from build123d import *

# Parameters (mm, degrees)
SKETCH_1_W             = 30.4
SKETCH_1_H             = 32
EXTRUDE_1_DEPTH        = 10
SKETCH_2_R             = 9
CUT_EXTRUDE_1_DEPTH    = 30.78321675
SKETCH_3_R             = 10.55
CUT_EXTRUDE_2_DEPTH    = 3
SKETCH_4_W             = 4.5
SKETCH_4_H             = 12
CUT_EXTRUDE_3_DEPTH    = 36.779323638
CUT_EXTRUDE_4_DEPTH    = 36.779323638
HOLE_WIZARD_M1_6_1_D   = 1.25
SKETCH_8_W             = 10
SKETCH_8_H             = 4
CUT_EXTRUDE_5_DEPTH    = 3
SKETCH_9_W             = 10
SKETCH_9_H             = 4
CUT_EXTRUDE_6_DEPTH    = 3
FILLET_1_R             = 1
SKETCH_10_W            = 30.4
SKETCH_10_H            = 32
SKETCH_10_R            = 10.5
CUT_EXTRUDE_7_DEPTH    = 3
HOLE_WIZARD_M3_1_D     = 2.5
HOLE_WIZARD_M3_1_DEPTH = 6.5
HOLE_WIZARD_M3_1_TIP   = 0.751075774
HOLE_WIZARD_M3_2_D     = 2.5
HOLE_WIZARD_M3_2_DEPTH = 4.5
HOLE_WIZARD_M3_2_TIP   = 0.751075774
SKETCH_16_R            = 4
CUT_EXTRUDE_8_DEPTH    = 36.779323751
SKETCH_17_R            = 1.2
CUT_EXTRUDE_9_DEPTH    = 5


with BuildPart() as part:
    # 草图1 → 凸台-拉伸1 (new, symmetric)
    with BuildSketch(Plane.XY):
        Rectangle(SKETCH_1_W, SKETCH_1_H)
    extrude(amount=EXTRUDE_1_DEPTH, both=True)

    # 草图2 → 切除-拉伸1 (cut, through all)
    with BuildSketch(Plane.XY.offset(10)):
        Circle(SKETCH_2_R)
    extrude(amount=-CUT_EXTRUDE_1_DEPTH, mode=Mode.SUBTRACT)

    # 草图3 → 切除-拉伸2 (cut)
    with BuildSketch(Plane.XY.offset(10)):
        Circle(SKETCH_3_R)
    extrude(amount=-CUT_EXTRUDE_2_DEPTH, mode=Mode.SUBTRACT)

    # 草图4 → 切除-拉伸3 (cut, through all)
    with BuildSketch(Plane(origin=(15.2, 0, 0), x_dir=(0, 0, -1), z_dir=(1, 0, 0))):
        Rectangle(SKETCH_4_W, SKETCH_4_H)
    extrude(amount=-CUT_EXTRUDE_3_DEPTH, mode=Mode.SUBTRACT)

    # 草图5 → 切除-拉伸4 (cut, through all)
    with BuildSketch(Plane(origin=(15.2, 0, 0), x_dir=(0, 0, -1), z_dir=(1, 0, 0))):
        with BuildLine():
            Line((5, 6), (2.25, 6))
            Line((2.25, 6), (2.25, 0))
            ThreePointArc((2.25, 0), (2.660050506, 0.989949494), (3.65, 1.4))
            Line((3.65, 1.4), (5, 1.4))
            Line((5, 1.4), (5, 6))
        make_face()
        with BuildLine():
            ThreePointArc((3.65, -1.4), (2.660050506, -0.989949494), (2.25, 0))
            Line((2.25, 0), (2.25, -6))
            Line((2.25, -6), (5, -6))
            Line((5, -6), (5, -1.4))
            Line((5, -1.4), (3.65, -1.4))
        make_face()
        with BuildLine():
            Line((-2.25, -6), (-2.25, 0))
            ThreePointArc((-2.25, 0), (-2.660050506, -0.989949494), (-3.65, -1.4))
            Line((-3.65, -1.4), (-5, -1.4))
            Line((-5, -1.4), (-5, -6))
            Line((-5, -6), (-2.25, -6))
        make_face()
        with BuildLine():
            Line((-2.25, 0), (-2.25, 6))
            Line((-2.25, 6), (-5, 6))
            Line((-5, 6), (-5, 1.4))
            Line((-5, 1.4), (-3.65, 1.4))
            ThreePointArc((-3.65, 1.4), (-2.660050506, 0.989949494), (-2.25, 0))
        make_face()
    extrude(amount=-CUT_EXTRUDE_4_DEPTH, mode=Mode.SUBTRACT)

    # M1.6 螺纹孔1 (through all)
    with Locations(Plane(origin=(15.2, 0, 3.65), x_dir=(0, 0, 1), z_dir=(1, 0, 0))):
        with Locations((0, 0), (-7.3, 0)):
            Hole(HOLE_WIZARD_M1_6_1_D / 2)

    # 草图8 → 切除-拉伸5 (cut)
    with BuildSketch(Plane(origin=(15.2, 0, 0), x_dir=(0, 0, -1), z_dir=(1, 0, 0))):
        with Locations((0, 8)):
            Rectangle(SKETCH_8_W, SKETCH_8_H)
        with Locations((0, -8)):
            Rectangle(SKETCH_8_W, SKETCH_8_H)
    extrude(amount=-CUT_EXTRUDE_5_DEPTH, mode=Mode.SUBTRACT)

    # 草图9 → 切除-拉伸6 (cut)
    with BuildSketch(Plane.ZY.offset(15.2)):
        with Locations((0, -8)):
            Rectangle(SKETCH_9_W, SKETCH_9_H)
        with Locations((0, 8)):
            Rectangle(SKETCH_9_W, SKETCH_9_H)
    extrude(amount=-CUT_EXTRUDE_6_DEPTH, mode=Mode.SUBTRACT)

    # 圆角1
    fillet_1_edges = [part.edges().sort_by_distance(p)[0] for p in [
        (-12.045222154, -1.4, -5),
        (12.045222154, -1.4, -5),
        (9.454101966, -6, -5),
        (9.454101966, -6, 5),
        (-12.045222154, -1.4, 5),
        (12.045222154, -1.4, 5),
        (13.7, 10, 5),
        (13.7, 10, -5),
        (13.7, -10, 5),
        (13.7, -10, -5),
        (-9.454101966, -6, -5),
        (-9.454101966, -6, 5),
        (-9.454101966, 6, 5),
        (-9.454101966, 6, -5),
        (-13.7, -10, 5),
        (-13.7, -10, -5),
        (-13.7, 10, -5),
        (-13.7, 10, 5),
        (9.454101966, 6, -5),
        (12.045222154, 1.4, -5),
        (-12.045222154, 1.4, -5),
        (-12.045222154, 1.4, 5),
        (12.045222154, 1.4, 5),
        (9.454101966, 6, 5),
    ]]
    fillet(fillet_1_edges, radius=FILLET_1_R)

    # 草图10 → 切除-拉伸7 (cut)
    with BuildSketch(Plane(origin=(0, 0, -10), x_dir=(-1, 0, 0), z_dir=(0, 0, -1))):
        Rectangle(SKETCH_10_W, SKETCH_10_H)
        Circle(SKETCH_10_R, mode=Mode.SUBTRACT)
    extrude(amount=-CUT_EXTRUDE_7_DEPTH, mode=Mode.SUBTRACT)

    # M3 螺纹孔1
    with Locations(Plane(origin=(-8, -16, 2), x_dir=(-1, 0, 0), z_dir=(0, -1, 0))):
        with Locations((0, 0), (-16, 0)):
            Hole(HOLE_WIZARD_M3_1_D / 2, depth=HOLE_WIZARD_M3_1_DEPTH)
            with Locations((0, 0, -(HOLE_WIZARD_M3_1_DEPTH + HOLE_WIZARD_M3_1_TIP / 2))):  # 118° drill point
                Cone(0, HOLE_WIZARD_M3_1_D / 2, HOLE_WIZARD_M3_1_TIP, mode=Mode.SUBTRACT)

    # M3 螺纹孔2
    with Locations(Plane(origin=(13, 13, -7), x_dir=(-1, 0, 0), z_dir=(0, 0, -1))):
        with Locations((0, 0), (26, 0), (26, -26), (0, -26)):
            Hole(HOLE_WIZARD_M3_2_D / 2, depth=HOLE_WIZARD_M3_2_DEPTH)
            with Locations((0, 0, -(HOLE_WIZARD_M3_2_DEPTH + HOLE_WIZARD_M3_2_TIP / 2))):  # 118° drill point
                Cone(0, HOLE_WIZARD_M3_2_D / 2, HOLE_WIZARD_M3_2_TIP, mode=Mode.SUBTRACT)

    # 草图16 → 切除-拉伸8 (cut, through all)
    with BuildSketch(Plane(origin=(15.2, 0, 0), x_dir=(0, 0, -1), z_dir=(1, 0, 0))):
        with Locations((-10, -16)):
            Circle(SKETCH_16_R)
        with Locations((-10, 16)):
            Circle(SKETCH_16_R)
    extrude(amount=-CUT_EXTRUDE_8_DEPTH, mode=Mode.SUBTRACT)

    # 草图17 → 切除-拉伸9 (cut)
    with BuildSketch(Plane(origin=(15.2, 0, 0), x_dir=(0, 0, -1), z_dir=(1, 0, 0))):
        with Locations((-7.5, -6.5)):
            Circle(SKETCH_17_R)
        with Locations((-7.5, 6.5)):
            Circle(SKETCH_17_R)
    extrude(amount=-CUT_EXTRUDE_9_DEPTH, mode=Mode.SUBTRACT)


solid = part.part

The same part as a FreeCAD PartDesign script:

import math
import FreeCAD as App
import Part
import Sketcher


def edges_at(feature, points):
    """Names of the edges that pass closest to the given points."""
    edges = feature.Shape.Edges
    near = lambda p: min(range(len(edges)), key=lambda i: edges[i].distToShape(Part.Vertex(*p))[0])
    return sorted({f"Edge{near(p) + 1}" for p in points})


def add_polygon(sketch, points):
    """Adds a closed chain of lines whose ends are joined by coincident constraints."""
    first, n = sketch.GeometryCount, len(points)
    for a, b in zip(points, points[1:] + points[:1]):
        sketch.addGeometry(Part.LineSegment(App.Vector(*a, 0), App.Vector(*b, 0)), False)
    for i in range(n):
        sketch.addConstraint(Sketcher.Constraint("Coincident", first + i, 2, first + (i + 1) % n, 1))

doc = App.newDocument("Part")
body = doc.addObject("PartDesign::Body", "Body")

sketch1 = body.newObject("Sketcher::SketchObject", "Sketch")
sketch1.AttachmentSupport = (doc.getObject("XY_Plane"), [""])
sketch1.MapMode = "FlatFace"
add_polygon(sketch1, [(-15, 16), (-15, -16), (15, -16), (15, 16)])
sketch1.addConstraint([
    Sketcher.Constraint("Vertical", 0),
    Sketcher.Constraint("Horizontal", 1),
    Sketcher.Constraint("Vertical", 2),
    Sketcher.Constraint("Horizontal", 3),
    Sketcher.Constraint("Symmetric", 0, 2, 2, 2, -1, 1),
    Sketcher.Constraint("DistanceY", 0, 2, 0, 1, 32.0),
    Sketcher.Constraint("DistanceX", 1, 1, 1, 2, 30.4),
])
pad1 = body.newObject("PartDesign::Pad", "Pad")
pad1.Profile = sketch1
pad1.Length = 20
pad1.Midplane = True

sketch2 = body.newObject("Sketcher::SketchObject", "Sketch001")
sketch2.AttachmentSupport = (doc.getObject("XY_Plane"), [""])
sketch2.MapMode = "FlatFace"
sketch2.AttachmentOffset = App.Placement(App.Vector(0, 0, 10), App.Rotation())
sketch2.addGeometry(Part.Circle(App.Vector(0, 0, 0), App.Vector(0, 0, 1), 9), False)
sketch2.addConstraint([
    Sketcher.Constraint("Coincident", 0, 3, -1, 1),
    Sketcher.Constraint("Diameter", 0, 18.0),
])
pocket1 = body.newObject("PartDesign::Pocket", "Pocket")
pocket1.Profile = sketch2
pocket1.Type = "ThroughAll"

sketch3 = body.newObject("Sketcher::SketchObject", "Sketch002")
sketch3.AttachmentSupport = (doc.getObject("XY_Plane"), [""])
sketch3.MapMode = "FlatFace"
sketch3.AttachmentOffset = App.Placement(App.Vector(0, 0, 10), App.Rotation())
sketch3.addGeometry(Part.Circle(App.Vector(0, 0, 0), App.Vector(0, 0, 1), 11), False)
sketch3.addConstraint([
    Sketcher.Constraint("Coincident", 0, 3, -1, 1),
    Sketcher.Constraint("Diameter", 0, 21.1),
])
pocket2 = body.newObject("PartDesign::Pocket", "Pocket001")
pocket2.Profile = sketch3
pocket2.Length = 3

sketch4 = body.newObject("Sketcher::SketchObject", "Sketch003")
sketch4.AttachmentSupport = (doc.getObject("YZ_Plane"), [""])
sketch4.MapMode = "FlatFace"
sketch4.AttachmentOffset = App.Placement(App.Vector(0, 0, 15.2), App.Rotation())
add_polygon(sketch4, [(6, 2.2), (-6, 2.2), (-6, -2.2), (6, -2.2)])
sketch4.addConstraint([
    Sketcher.Constraint("Horizontal", 0),
    Sketcher.Constraint("Vertical", 1),
    Sketcher.Constraint("Horizontal", 2),
    Sketcher.Constraint("Vertical", 3),
    Sketcher.Constraint("Symmetric", 0, 2, 2, 2, -1, 1),
    Sketcher.Constraint("DistanceX", 0, 2, 0, 1, 12.0),
    Sketcher.Constraint("DistanceY", 1, 2, 1, 1, 4.5),
])
pocket3 = body.newObject("PartDesign::Pocket", "Pocket002")
pocket3.Profile = sketch4
pocket3.Type = "ThroughAll"

sketch5 = body.newObject("Sketcher::SketchObject", "Sketch004")
sketch5.AttachmentSupport = (doc.getObject("YZ_Plane"), [""])
sketch5.MapMode = "FlatFace"
sketch5.AttachmentOffset = App.Placement(App.Vector(0, 0, 15.2), App.Rotation())
sketch5.addGeometry([
    Part.LineSegment(App.Vector(6, -5, 0), App.Vector(6, -2.2, 0)),
    Part.LineSegment(App.Vector(6, -2.2, 0), App.Vector(0, -2.2, 0)),
    Part.ArcOfCircle(Part.Circle(App.Vector(0, -3.6, 0), App.Vector(0, 0, 1), 1.4), math.radians(0), math.radians(90)),
    Part.LineSegment(App.Vector(1.4, -3.6, 0), App.Vector(1.4, -5, 0)),
    Part.LineSegment(App.Vector(1.4, -5, 0), App.Vector(6, -5, 0)),
    Part.ArcOfCircle(Part.Circle(App.Vector(0, -3.6, 0), App.Vector(0, 0, 1), 1.4), math.radians(90), math.radians(180)),
    Part.LineSegment(App.Vector(0, -2.2, 0), App.Vector(-6, -2.2, 0)),
    Part.LineSegment(App.Vector(-6, -2.2, 0), App.Vector(-6, -5, 0)),
    Part.LineSegment(App.Vector(-6, -5, 0), App.Vector(-1.4, -5, 0)),
    Part.LineSegment(App.Vector(-1.4, -5, 0), App.Vector(-1.4, -3.6, 0)),
    Part.LineSegment(App.Vector(-6, 2.2, 0), App.Vector(0, 2.2, 0)),
    Part.ArcOfCircle(Part.Circle(App.Vector(0, 3.6, 0), App.Vector(0, 0, 1), 1.4), math.radians(180), math.radians(270)),
    Part.LineSegment(App.Vector(-1.4, 3.6, 0), App.Vector(-1.4, 5, 0)),
    Part.LineSegment(App.Vector(-1.4, 5, 0), App.Vector(-6, 5, 0)),
    Part.LineSegment(App.Vector(-6, 5, 0), App.Vector(-6, 2.2, 0)),
    Part.LineSegment(App.Vector(0, 2.2, 0), App.Vector(6, 2.2, 0)),
    Part.LineSegment(App.Vector(6, 2.2, 0), App.Vector(6, 5, 0)),
    Part.LineSegment(App.Vector(6, 5, 0), App.Vector(1.4, 5, 0)),
    Part.LineSegment(App.Vector(1.4, 5, 0), App.Vector(1.4, 3.6, 0)),
    Part.ArcOfCircle(Part.Circle(App.Vector(0, 3.6, 0), App.Vector(0, 0, 1), 1.4), math.radians(-90), math.radians(0)),
], False)
sketch5.addConstraint([
    Sketcher.Constraint("Coincident", 0, 2, 1, 1),
    Sketcher.Constraint("Tangent", 1, 2, 2, 2),
    Sketcher.Constraint("Tangent", 2, 1, 3, 1),
    Sketcher.Constraint("Coincident", 3, 2, 4, 1),
    Sketcher.Constraint("Coincident", 4, 2, 0, 1),
    Sketcher.Constraint("Tangent", 5, 1, 6, 1),
    Sketcher.Constraint("Coincident", 6, 2, 7, 1),
    Sketcher.Constraint("Coincident", 7, 2, 8, 1),
    Sketcher.Constraint("Coincident", 8, 2, 9, 1),
    Sketcher.Constraint("Tangent", 9, 2, 5, 2),
    Sketcher.Constraint("Tangent", 10, 2, 11, 2),
    Sketcher.Constraint("Tangent", 11, 1, 12, 1),
    Sketcher.Constraint("Coincident", 12, 2, 13, 1),
    Sketcher.Constraint("Coincident", 13, 2, 14, 1),
    Sketcher.Constraint("Coincident", 14, 2, 10, 1),
    Sketcher.Constraint("Coincident", 15, 2, 16, 1),
    Sketcher.Constraint("Coincident", 16, 2, 17, 1),
    Sketcher.Constraint("Coincident", 17, 2, 18, 1),
    Sketcher.Constraint("Tangent", 18, 2, 19, 2),
    Sketcher.Constraint("Tangent", 19, 1, 15, 1),
    Sketcher.Constraint("Vertical", 0),
    Sketcher.Constraint("Horizontal", 1),
    Sketcher.Constraint("Vertical", 3),
    Sketcher.Constraint("Horizontal", 4),
    Sketcher.Constraint("Horizontal", 6),
    Sketcher.Constraint("Vertical", 7),
    Sketcher.Constraint("Horizontal", 8),
    Sketcher.Constraint("Vertical", 9),
    Sketcher.Constraint("Horizontal", 10),
    Sketcher.Constraint("Vertical", 12),
    Sketcher.Constraint("Horizontal", 13),
    Sketcher.Constraint("Vertical", 14),
    Sketcher.Constraint("Horizontal", 15),
    Sketcher.Constraint("Vertical", 16),
    Sketcher.Constraint("Horizontal", 17),
    Sketcher.Constraint("Vertical", 18),
    Sketcher.Constraint("Coincident", 5, 3, 2, 3),
    Sketcher.Constraint("Coincident", 19, 3, 11, 3),
    Sketcher.Constraint("Equal", 2, 5),
    Sketcher.Constraint("Equal", 5, 11),
    Sketcher.Constraint("Equal", 11, 19),
    Sketcher.Constraint("Symmetric", 2, 3, 11, 3, -1, 1),
    Sketcher.Constraint("Symmetric", 4, 2, 13, 2, -1, 1),
    Sketcher.Constraint("Symmetric", 7, 2, 16, 2, -1, 1),
    Sketcher.Constraint("Symmetric", 4, 2, 7, 2, -2),
    Sketcher.Constraint("PointOnObject", 2, 3, -2),
    Sketcher.Constraint("Radius", 2, 1.4),
    Sketcher.Constraint("DistanceX", 1, 2, 1, 1, 6.0),
    Sketcher.Constraint("DistanceY", 3, 2, -1, 1, 5.0),
    Sketcher.Constraint("DistanceY", 0, 1, 0, 2, 2.75),
])
pocket4 = body.newObject("PartDesign::Pocket", "Pocket003")
pocket4.Profile = sketch5
pocket4.Type = "ThroughAll"

sketch6 = body.newObject("Sketcher::SketchObject", "Sketch005")
sketch6.AttachmentSupport = (doc.getObject("YZ_Plane"), [""])
sketch6.MapMode = "FlatFace"
sketch6.AttachmentOffset = App.Placement(App.Vector(0, 0, 15.2), App.Rotation())
sketch6.addGeometry([
    Part.Circle(App.Vector(0, 3.6, 0), App.Vector(0, 0, 1), 0.6),
    Part.Circle(App.Vector(0, -3.6, 0), App.Vector(0, 0, 1), 0.6),
], False)
sketch6.addConstraint([
    Sketcher.Constraint("Equal", 0, 1),
    Sketcher.Constraint("Symmetric", 0, 3, 1, 3, -1, 1),
    Sketcher.Constraint("PointOnObject", 0, 3, -2),
    Sketcher.Constraint("Diameter", 0, 1.25),
    Sketcher.Constraint("DistanceY", 1, 3, 0, 3, 7.3),
])
doc.recompute()
hole = body.newObject("PartDesign::Hole", "Hole")
hole.Profile = sketch6
hole.ThreadType = "None"
hole.Diameter = 1.25
hole.DepthType = "ThroughAll"

sketch7 = body.newObject("Sketcher::SketchObject", "Sketch006")
sketch7.AttachmentSupport = (doc.getObject("YZ_Plane"), [""])
sketch7.MapMode = "FlatFace"
sketch7.AttachmentOffset = App.Placement(App.Vector(0, 0, 15.2), App.Rotation())
add_polygon(sketch7, [(10, 5), (6, 5), (6, -5), (10, -5)])
add_polygon(sketch7, [(-6, 5), (-10, 5), (-10, -5), (-6, -5)])
sketch7.addConstraint([
    Sketcher.Constraint("Horizontal", 0),
    Sketcher.Constraint("Vertical", 1),
    Sketcher.Constraint("Horizontal", 2),
    Sketcher.Constraint("Vertical", 3),
    Sketcher.Constraint("Horizontal", 4),
    Sketcher.Constraint("Vertical", 5),
    Sketcher.Constraint("Horizontal", 6),
    Sketcher.Constraint("Vertical", 7),
    Sketcher.Constraint("Symmetric", 2, 2, 4, 2, -1, 1),
    Sketcher.Constraint("Symmetric", 0, 2, 6, 2, -1, 1),
    Sketcher.Constraint("Horizontal", 3, 2, 4, 2),
    Sketcher.Constraint("DistanceX", 0, 2, 0, 1, 4.0),
    Sketcher.Constraint("DistanceY", 1, 2, 1, 1, 10.0),
    Sketcher.Constraint("DistanceX", -1, 1, 0, 2, 6.0),
])
pocket5 = body.newObject("PartDesign::Pocket", "Pocket004")
pocket5.Profile = sketch7
pocket5.Length = 3

sketch8 = body.newObject("Sketcher::SketchObject", "Sketch007")
sketch8.AttachmentSupport = (doc.getObject("YZ_Plane"), [""])
sketch8.MapMode = "FlatFace"
sketch8.AttachmentOffset = App.Placement(App.Vector(0, 0, -15.2), App.Rotation())
add_polygon(sketch8, [(-6, -5), (-10, -5), (-10, 5), (-6, 5)])
add_polygon(sketch8, [(10, -5), (6, -5), (6, 5), (10, 5)])
sketch8.addConstraint([
    Sketcher.Constraint("Horizontal", 0),
    Sketcher.Constraint("Vertical", 1),
    Sketcher.Constraint("Horizontal", 2),
    Sketcher.Constraint("Vertical", 3),
    Sketcher.Constraint("Horizontal", 4),
    Sketcher.Constraint("Vertical", 5),
    Sketcher.Constraint("Horizontal", 6),
    Sketcher.Constraint("Vertical", 7),
    Sketcher.Constraint("Symmetric", 2, 2, 4, 2, -1, 1),
    Sketcher.Constraint("Symmetric", 0, 2, 6, 2, -1, 1),
    Sketcher.Constraint("Horizontal", 3, 2, 4, 2),
    Sketcher.Constraint("DistanceX", 0, 2, 0, 1, 4.0),
    Sketcher.Constraint("DistanceY", 1, 1, 1, 2, 10.0),
    Sketcher.Constraint("DistanceX", 0, 2, -1, 1, 10.0),
])
pocket6 = body.newObject("PartDesign::Pocket", "Pocket005")
pocket6.Profile = sketch8
pocket6.Length = 3
pocket6.Reversed = True
doc.recompute()

fillet = body.newObject("PartDesign::Fillet", "Fillet")
fillet.Base = (pocket6, edges_at(pocket6, [
    (-12.045, -1.4, -5),
    (12.045, -1.4, -5),
    (9.454, -6, -5),
    (9.454, -6, 5),
    (-12.045, -1.4, 5),
    (12.045, -1.4, 5),
    (13.7, 10, 5),
    (13.7, 10, -5),
    (13.7, -10, 5),
    (13.7, -10, -5),
    (-9.454, -6, -5),
    (-9.454, -6, 5),
    (-9.454, 6, 5),
    (-9.454, 6, -5),
    (-13.7, -10, 5),
    (-13.7, -10, -5),
    (-13.7, 10, -5),
    (-13.7, 10, 5),
    (9.454, 6, -5),
    (12.045, 1.4, -5),
    (-12.045, 1.4, -5),
    (-12.045, 1.4, 5),
    (12.045, 1.4, 5),
    (9.454, 6, 5),
]))
fillet.Radius = 1

sketch9 = body.newObject("Sketcher::SketchObject", "Sketch008")
sketch9.AttachmentSupport = (doc.getObject("XY_Plane"), [""])
sketch9.MapMode = "FlatFace"
sketch9.AttachmentOffset = App.Placement(App.Vector(0, 0, -10), App.Rotation())
add_polygon(sketch9, [(15, 16), (15, -16), (-15, -16), (-15, 16)])
sketch9.addGeometry(Part.Circle(App.Vector(0, 0, 0), App.Vector(0, 0, 1), 10), False)
sketch9.addConstraint([
    Sketcher.Constraint("Vertical", 0),
    Sketcher.Constraint("Horizontal", 1),
    Sketcher.Constraint("Vertical", 2),
    Sketcher.Constraint("Horizontal", 3),
    Sketcher.Constraint("Coincident", 4, 3, -1, 1),
    Sketcher.Constraint("Symmetric", 0, 2, 2, 2, -1, 1),
    Sketcher.Constraint("Diameter", 4, 21.0),
    Sketcher.Constraint("DistanceY", 0, 2, 0, 1, 32.0),
    Sketcher.Constraint("DistanceX", 1, 2, 1, 1, 30.4),
])
pocket7 = body.newObject("PartDesign::Pocket", "Pocket006")
pocket7.Profile = sketch9
pocket7.Length = 3
pocket7.Reversed = True

sketch10 = body.newObject("Sketcher::SketchObject", "Sketch009")
sketch10.AttachmentSupport = (doc.getObject("XZ_Plane"), [""])
sketch10.MapMode = "FlatFace"
sketch10.AttachmentOffset = App.Placement(App.Vector(0, 0, 16), App.Rotation())
sketch10.addGeometry([
    Part.Circle(App.Vector(-8, 2, 0), App.Vector(0, 0, 1), 1.2),
    Part.Circle(App.Vector(8, 2, 0), App.Vector(0, 0, 1), 1.2),
], False)
sketch10.addConstraint([
    Sketcher.Constraint("Equal", 0, 1),
    Sketcher.Constraint("Symmetric", 0, 3, 1, 3, -2),
    Sketcher.Constraint("Diameter", 0, 2.5),
    Sketcher.Constraint("DistanceX", 0, 3, -1, 1, 8.0),
    Sketcher.Constraint("DistanceY", -1, 1, 0, 3, 2.0),
])
doc.recompute()
hole2 = body.newObject("PartDesign::Hole", "Hole001")
hole2.Profile = sketch10
hole2.ThreadType = "None"
hole2.Diameter = 2.5
hole2.DepthType = "Dimension"
hole2.Depth = 6.5
hole2.DrillPoint = "Angled"
hole2.DrillPointAngle = 118

sketch11 = body.newObject("Sketcher::SketchObject", "Sketch010")
sketch11.AttachmentSupport = (doc.getObject("XY_Plane"), [""])
sketch11.MapMode = "FlatFace"
sketch11.AttachmentOffset = App.Placement(App.Vector(0, 0, -7), App.Rotation())
sketch11.addGeometry([
    Part.Circle(App.Vector(13, 13, 0), App.Vector(0, 0, 1), 1.2),
    Part.Circle(App.Vector(-13, 13, 0), App.Vector(0, 0, 1), 1.2),
    Part.Circle(App.Vector(-13, -13, 0), App.Vector(0, 0, 1), 1.2),
    Part.Circle(App.Vector(13, -13, 0), App.Vector(0, 0, 1), 1.2),
], False)
sketch11.addConstraint([
    Sketcher.Constraint("Equal", 0, 1),
    Sketcher.Constraint("Equal", 1, 2),
    Sketcher.Constraint("Equal", 2, 3),
    Sketcher.Constraint("Symmetric", 0, 3, 2, 3, -1, 1),
    Sketcher.Constraint("Symmetric", 1, 3, 3, 3, -1, 1),
    Sketcher.Constraint("Symmetric", 0, 3, 1, 3, -2),
    Sketcher.Constraint("Diameter", 0, 2.5),
    Sketcher.Constraint("DistanceX", -1, 1, 0, 3, 13.0),
    Sketcher.Constraint("DistanceY", -1, 1, 0, 3, 13.0),
])
doc.recompute()
hole3 = body.newObject("PartDesign::Hole", "Hole002")
hole3.Profile = sketch11
hole3.ThreadType = "None"
hole3.Diameter = 2.5
hole3.DepthType = "Dimension"
hole3.Depth = 4.5
hole3.DrillPoint = "Angled"
hole3.DrillPointAngle = 118
hole3.Reversed = True

sketch12 = body.newObject("Sketcher::SketchObject", "Sketch011")
sketch12.AttachmentSupport = (doc.getObject("YZ_Plane"), [""])
sketch12.MapMode = "FlatFace"
sketch12.AttachmentOffset = App.Placement(App.Vector(0, 0, 15.2), App.Rotation())
sketch12.addGeometry([
    Part.Circle(App.Vector(-16, 10, 0), App.Vector(0, 0, 1), 4),
    Part.Circle(App.Vector(16, 10, 0), App.Vector(0, 0, 1), 4),
], False)
sketch12.addConstraint([
    Sketcher.Constraint("Equal", 0, 1),
    Sketcher.Constraint("Symmetric", 0, 3, 1, 3, -2),
    Sketcher.Constraint("Diameter", 0, 8.0),
    Sketcher.Constraint("DistanceX", 0, 3, -1, 1, 16.0),
    Sketcher.Constraint("DistanceY", -1, 1, 0, 3, 10.0),
])
pocket8 = body.newObject("PartDesign::Pocket", "Pocket007")
pocket8.Profile = sketch12
pocket8.Type = "ThroughAll"

sketch13 = body.newObject("Sketcher::SketchObject", "Sketch012")
sketch13.AttachmentSupport = (doc.getObject("YZ_Plane"), [""])
sketch13.MapMode = "FlatFace"
sketch13.AttachmentOffset = App.Placement(App.Vector(0, 0, 15.2), App.Rotation())
sketch13.addGeometry([
    Part.Circle(App.Vector(-6.5, 7.5, 0), App.Vector(0, 0, 1), 1.2),
    Part.Circle(App.Vector(6.5, 7.5, 0), App.Vector(0, 0, 1), 1.2),
], False)
sketch13.addConstraint([
    Sketcher.Constraint("Equal", 0, 1),
    Sketcher.Constraint("Symmetric", 0, 3, 1, 3, -2),
    Sketcher.Constraint("Diameter", 0, 2.4),
    Sketcher.Constraint("DistanceX", 0, 3, 1, 3, 13.0),
    Sketcher.Constraint("DistanceY", -1, 1, 0, 3, 7.5),
])
pocket9 = body.newObject("PartDesign::Pocket", "Pocket008")
pocket9.Profile = sketch13
pocket9.Length = 5

doc.recompute()
